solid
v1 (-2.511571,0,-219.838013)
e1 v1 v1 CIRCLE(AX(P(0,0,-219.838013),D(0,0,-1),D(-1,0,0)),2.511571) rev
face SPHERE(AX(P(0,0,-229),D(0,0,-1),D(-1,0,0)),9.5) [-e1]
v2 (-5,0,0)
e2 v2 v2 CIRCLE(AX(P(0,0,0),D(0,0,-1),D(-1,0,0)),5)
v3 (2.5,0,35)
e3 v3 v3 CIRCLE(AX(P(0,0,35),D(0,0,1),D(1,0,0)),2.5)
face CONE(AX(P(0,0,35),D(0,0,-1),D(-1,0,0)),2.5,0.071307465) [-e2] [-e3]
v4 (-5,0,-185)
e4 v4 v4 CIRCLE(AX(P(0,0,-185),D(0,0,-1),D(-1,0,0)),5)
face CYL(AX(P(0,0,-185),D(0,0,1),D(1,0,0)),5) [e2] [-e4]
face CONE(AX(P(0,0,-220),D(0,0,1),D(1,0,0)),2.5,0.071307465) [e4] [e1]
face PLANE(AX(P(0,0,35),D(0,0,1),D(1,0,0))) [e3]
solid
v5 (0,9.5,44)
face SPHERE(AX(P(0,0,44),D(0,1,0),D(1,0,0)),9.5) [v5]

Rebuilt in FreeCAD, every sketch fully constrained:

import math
import FreeCAD as App
import Part
import Sketcher

V = App.Vector
Q = App.Units.Quantity

doc = App.newDocument("Part")
body = doc.addObject("PartDesign::Body", "Body")

# Sketch on XY plane
sketch1 = doc.addObject("Sketcher::SketchObject", "Sketch")
body.addObject(sketch1)
sketch1.AttachmentSupport = (doc.XY_Plane, [""])
sketch1.MapMode = "FlatFace"
sketch1.addGeometry(Part.Circle(V(0, 0, 0), V(0, 0, 1), 5), False)
sketch1.addConstraint([
    Sketcher.Constraint("Coincident", 0, 3, -1, 1),
    Sketcher.Constraint("Diameter", 0, Q("10 mm")),
])

# Sketch on XY plane
sketch2 = doc.addObject("Sketcher::SketchObject", "Sketch001")
body.addObject(sketch2)
sketch2.AttachmentSupport = (doc.XY_Plane, [""])
sketch2.MapMode = "FlatFace"
sketch2.AttachmentOffset = App.Placement(V(0, 0, 35), App.Rotation())
sketch2.addGeometry(Part.Circle(V(0, 0, 0), V(0, 0, 1), 2.5), False)
sketch2.addConstraint([
    Sketcher.Constraint("Coincident", 0, 3, -1, 1),
    Sketcher.Constraint("Diameter", 0, Q("5 mm")),
])

additiveloft = doc.addObject("PartDesign::AdditiveLoft", "AdditiveLoft")
body.addObject(additiveloft)
additiveloft.Profile = sketch1
additiveloft.Sections = [sketch2]

# Sketch on XY plane
sketch3 = doc.addObject("Sketcher::SketchObject", "Sketch002")
body.addObject(sketch3)
sketch3.AttachmentSupport = (doc.XY_Plane, [""])
sketch3.MapMode = "FlatFace"
sketch3.addGeometry(Part.Circle(V(0, 0, 0), V(0, 0, 1), 5), False)
sketch3.addConstraint([
    Sketcher.Constraint("Coincident", 0, 3, -1, 1),
    Sketcher.Constraint("Diameter", 0, Q("10 mm")),
])
pad1 = doc.addObject("PartDesign::Pad", "Pad")
body.addObject(pad1)
pad1.Profile = sketch3
pad1.Length = 185
pad1.Reversed = True

# Sketch on XY plane
sketch4 = doc.addObject("Sketcher::SketchObject", "Sketch003")
body.addObject(sketch4)
sketch4.AttachmentSupport = (doc.XY_Plane, [""])
sketch4.MapMode = "FlatFace"
sketch4.AttachmentOffset = App.Placement(V(0, 0, -185), App.Rotation())
sketch4.addGeometry(Part.Circle(V(0, 0, 0), V(0, 0, 1), 5), False)
sketch4.addConstraint([
    Sketcher.Constraint("Coincident", 0, 3, -1, 1),
    Sketcher.Constraint("Diameter", 0, Q("10 mm")),
])

# Sketch on XY plane
sketch5 = doc.addObject("Sketcher::SketchObject", "Sketch004")
body.addObject(sketch5)
sketch5.AttachmentSupport = (doc.XY_Plane, [""])
sketch5.MapMode = "FlatFace"
sketch5.AttachmentOffset = App.Placement(V(0, 0, -220), App.Rotation())
sketch5.addGeometry(Part.Circle(V(0, 0, 0), V(0, 0, 1), 2.5), False)
sketch5.addConstraint([
    Sketcher.Constraint("Coincident", 0, 3, -1, 1),
    Sketcher.Constraint("Diameter", 0, Q("5 mm")),
])

additiveloft2 = doc.addObject("PartDesign::AdditiveLoft", "AdditiveLoft001")
body.addObject(additiveloft2)
additiveloft2.Profile = sketch4
additiveloft2.Sections = [sketch5]

# Sketch on XY plane
sketch6 = doc.addObject("Sketcher::SketchObject", "Sketch005")
body.addObject(sketch6)
sketch6.AttachmentSupport = (doc.XY_Plane, [""])
sketch6.MapMode = "FlatFace"
sketch6.AttachmentOffset = App.Placement(V(0, 0, -229), App.Rotation())
sketch6.addGeometry([
    Part.LineSegment(V(0, 10, 0), V(0, -10, 0)),
    Part.ArcOfCircle(Part.Circle(V(0, 0, 0), V(0, 0, 1), 10), math.radians(90), math.radians(270)),
], False)
sketch6.addConstraint([
    Sketcher.Constraint("Coincident", 0, 1, 1, 1),
    Sketcher.Constraint("Coincident", 1, 2, 0, 2),
    Sketcher.Constraint("Vertical", 0),
    Sketcher.Constraint("Coincident", 1, 3, -1, 1),
    Sketcher.Constraint("PointOnObject", 0, 1, -2),
    Sketcher.Constraint("Radius", 1, Q("9.5 mm")),
])
revolution = doc.addObject("PartDesign::Revolution", "Revolution")
body.addObject(revolution)
revolution.Profile = sketch6
revolution.ReferenceAxis = (sketch6, ["V_Axis"])
revolution.Angle = 360
body2 = doc.addObject("PartDesign::Body", "Body001")

# Sketch on XY plane
sketch7 = doc.addObject("Sketcher::SketchObject", "Sketch006")
body2.addObject(sketch7)
sketch7.AttachmentSupport = (doc.getObject("XY_Plane001"), [""])
sketch7.MapMode = "FlatFace"
sketch7.AttachmentOffset = App.Placement(V(0, 0, 44), App.Rotation())
sketch7.addGeometry([
    Part.LineSegment(V(0, 10, 0), V(0, -10, 0)),
    Part.ArcOfCircle(Part.Circle(V(0, 0, 0), V(0, 0, 1), 10), math.radians(-90), math.radians(90)),
], False)
sketch7.addConstraint([
    Sketcher.Constraint("Coincident", 0, 1, 1, 2),
    Sketcher.Constraint("Coincident", 1, 1, 0, 2),
    Sketcher.Constraint("Vertical", 0),
    Sketcher.Constraint("Coincident", 1, 3, -1, 1),
    Sketcher.Constraint("PointOnObject", 0, 1, -2),
    Sketcher.Constraint("Radius", 1, Q("9.5 mm")),
])
revolution2 = doc.addObject("PartDesign::Revolution", "Revolution001")
body2.addObject(revolution2)
revolution2.Profile = sketch7
revolution2.ReferenceAxis = (sketch7, ["V_Axis"])
revolution2.Angle = 360

doc.recompute()
